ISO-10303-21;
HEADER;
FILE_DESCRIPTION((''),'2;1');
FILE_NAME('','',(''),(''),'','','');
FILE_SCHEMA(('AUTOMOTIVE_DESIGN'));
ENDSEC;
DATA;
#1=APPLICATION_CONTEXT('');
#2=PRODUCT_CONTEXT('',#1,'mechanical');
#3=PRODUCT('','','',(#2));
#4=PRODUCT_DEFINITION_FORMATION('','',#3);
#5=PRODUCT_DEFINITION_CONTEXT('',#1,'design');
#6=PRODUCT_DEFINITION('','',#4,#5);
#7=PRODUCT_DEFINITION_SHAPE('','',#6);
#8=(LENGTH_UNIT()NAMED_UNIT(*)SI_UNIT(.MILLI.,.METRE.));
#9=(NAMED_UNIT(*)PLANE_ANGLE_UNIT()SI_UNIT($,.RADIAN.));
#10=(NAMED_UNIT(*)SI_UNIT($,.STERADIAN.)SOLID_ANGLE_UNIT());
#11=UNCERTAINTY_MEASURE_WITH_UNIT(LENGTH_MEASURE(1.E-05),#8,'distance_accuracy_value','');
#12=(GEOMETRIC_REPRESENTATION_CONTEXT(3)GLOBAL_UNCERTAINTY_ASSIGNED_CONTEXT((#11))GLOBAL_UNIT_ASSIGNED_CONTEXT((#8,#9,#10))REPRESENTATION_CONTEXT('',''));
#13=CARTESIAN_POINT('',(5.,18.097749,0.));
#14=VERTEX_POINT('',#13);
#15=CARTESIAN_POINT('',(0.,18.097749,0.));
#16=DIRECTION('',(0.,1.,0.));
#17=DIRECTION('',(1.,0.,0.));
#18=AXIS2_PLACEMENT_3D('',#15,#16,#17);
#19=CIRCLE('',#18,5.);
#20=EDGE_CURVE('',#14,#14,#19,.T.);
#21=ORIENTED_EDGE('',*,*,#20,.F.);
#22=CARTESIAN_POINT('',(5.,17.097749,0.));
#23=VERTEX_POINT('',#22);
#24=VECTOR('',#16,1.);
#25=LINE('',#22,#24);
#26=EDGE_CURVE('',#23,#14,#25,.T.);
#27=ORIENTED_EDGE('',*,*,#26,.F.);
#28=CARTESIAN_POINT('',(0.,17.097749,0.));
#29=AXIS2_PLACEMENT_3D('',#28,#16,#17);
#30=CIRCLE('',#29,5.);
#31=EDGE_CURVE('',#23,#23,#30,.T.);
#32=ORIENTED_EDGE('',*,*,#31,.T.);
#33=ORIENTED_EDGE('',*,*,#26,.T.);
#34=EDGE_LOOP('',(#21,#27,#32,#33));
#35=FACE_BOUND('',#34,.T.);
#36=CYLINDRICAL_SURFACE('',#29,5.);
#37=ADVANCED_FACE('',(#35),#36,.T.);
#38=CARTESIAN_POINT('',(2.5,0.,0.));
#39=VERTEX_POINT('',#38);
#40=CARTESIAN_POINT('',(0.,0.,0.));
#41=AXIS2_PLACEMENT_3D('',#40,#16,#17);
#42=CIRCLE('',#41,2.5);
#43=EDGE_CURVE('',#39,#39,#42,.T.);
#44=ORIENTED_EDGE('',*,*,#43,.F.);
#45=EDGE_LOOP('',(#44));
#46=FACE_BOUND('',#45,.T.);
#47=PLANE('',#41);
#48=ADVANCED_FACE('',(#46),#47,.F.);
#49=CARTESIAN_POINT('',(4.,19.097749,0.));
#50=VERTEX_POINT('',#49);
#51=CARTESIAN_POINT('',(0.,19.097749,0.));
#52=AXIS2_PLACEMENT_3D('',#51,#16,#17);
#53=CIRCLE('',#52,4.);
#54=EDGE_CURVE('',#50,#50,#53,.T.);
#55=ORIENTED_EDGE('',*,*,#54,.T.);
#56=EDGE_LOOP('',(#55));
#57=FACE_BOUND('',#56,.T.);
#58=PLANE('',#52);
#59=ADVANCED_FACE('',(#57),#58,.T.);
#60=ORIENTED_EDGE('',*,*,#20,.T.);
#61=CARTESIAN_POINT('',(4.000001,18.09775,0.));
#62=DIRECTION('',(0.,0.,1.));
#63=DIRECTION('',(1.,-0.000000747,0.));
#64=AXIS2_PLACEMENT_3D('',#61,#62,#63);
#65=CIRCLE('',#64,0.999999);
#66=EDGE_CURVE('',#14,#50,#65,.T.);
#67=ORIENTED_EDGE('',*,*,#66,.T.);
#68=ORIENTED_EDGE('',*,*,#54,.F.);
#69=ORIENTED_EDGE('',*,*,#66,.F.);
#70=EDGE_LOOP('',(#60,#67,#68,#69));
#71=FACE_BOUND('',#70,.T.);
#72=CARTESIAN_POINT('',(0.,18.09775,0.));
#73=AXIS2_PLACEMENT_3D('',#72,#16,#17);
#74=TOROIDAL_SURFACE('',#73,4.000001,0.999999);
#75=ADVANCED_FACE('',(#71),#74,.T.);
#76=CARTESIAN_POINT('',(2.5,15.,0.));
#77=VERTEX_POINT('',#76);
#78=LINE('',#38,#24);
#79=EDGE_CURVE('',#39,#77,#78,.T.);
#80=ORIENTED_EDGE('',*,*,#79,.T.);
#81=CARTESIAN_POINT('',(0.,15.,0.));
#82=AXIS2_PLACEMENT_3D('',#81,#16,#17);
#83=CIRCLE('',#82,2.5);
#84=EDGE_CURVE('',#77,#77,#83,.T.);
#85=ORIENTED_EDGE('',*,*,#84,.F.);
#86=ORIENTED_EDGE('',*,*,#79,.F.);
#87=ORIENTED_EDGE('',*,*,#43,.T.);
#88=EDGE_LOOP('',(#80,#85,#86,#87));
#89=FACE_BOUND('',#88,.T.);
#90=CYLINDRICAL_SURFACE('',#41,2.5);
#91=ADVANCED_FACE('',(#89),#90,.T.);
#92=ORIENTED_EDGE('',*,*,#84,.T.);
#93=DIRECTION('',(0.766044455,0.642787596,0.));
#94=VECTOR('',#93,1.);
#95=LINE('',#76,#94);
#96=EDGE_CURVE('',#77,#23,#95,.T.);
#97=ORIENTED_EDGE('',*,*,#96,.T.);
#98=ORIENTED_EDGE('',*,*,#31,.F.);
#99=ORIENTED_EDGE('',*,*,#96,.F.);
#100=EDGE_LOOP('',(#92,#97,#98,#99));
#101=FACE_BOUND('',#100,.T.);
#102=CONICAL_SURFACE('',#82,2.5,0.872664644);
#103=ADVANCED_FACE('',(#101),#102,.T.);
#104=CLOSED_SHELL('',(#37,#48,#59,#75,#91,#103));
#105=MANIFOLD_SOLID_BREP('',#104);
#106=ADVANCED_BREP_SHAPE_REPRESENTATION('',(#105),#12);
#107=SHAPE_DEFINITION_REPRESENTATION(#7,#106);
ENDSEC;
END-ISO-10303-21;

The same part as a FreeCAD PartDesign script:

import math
import FreeCAD as App
import Part
import Sketcher
from FreeCAD import Vector
Q = App.Units.Quantity

doc = App.newDocument("Part")
params = doc.addObject("Spreadsheet::Sheet", "Params")
for row, (alias, value) in enumerate([
    ("sketch1_radius", "0.999999 mm"),
    ("sketch1_width", "4 mm"),
    ("sketch1_height", "15 mm"),
    ("sketch1_height2", "1 mm"),
    ("sketch1_width2", "2.5 mm"),
    ("revolution_angle", "360 deg"),
], start=1):
    params.set(f"A{row}", alias)
    params.set(f"B{row}", "=" + value)
    params.setAlias(f"B{row}", alias)

body = doc.addObject("PartDesign::Body", "Body")

sketch1 = body.newObject("Sketcher::SketchObject", "Sketch")
sketch1.AttachmentSupport = (doc.getObject("XY_Plane"), [""])
sketch1.MapMode = "FlatFace"
sketch1.addGeometry(Part.LineSegment(Vector(0, 19.1, 0), Vector(0, 0, 0)), False)
sketch1.addGeometry(Part.LineSegment(Vector(0, 0, 0), Vector(2.5, 0, 0)), False)
sketch1.addGeometry(Part.LineSegment(Vector(2.5, 0, 0), Vector(2.5, 15, 0)), False)
sketch1.addGeometry(Part.LineSegment(Vector(2.5, 15, 0), Vector(5, 17.1, 0)), False)
sketch1.addGeometry(Part.LineSegment(Vector(5, 17.1, 0), Vector(5, 18.1, 0)), False)
sketch1.addGeometry(Part.ArcOfCircle(Part.Circle(Vector(4, 18.1, 0), Vector(0, 0, 1), 1), math.radians(0), math.radians(90)), False)
sketch1.addGeometry(Part.LineSegment(Vector(4, 19.1, 0), Vector(0, 19.1, 0)), False)
sketch1.addConstraint(Sketcher.Constraint("Coincident", 0, 2, 1, 1))
sketch1.addConstraint(Sketcher.Constraint("Coincident", 1, 2, 2, 1))
sketch1.addConstraint(Sketcher.Constraint("Coincident", 2, 2, 3, 1))
sketch1.addConstraint(Sketcher.Constraint("Coincident", 3, 2, 4, 1))
sketch1.addConstraint(Sketcher.Constraint("Tangent", 4, 2, 5, 1))
sketch1.addConstraint(Sketcher.Constraint("Tangent", 5, 2, 6, 1))
sketch1.addConstraint(Sketcher.Constraint("Coincident", 6, 2, 0, 1))
sketch1.addConstraint(Sketcher.Constraint("Vertical", 0))
sketch1.addConstraint(Sketcher.Constraint("Horizontal", 1))
sketch1.addConstraint(Sketcher.Constraint("Vertical", 2))
sketch1.addConstraint(Sketcher.Constraint("Vertical", 4))
sketch1.addConstraint(Sketcher.Constraint("Horizontal", 6))
sketch1.addConstraint(Sketcher.Constraint("Coincident", 0, 2, -1, 1))
sketch1.addConstraint(Sketcher.Constraint("Radius", 5, 0.999999))
sketch1.addConstraint(Sketcher.Constraint("DistanceX", 6, 2, 6, 1, 4.0))
sketch1.addConstraint(Sketcher.Constraint("DistanceY", 2, 1, 2, 2, 15.0))
sketch1.addConstraint(Sketcher.Constraint("DistanceY", 4, 1, 4, 2, 1.0))
sketch1.addConstraint(Sketcher.Constraint("Angle", 3, Q("39.999999 deg")))
sketch1.addConstraint(Sketcher.Constraint("DistanceX", 1, 1, 1, 2, 2.5))
sketch1.setExpression("Constraints[13]", "Params.sketch1_radius")
sketch1.setExpression("Constraints[14]", "Params.sketch1_width")
sketch1.setExpression("Constraints[15]", "Params.sketch1_height")
sketch1.setExpression("Constraints[16]", "Params.sketch1_height2")
sketch1.setExpression("Constraints[18]", "Params.sketch1_width2")
revolution = body.newObject("PartDesign::Revolution", "Revolution")
revolution.Profile = sketch1
revolution.ReferenceAxis = (sketch1, ["V_Axis"])
revolution.setExpression("Angle", "Params.revolution_angle")

doc.recompute()
